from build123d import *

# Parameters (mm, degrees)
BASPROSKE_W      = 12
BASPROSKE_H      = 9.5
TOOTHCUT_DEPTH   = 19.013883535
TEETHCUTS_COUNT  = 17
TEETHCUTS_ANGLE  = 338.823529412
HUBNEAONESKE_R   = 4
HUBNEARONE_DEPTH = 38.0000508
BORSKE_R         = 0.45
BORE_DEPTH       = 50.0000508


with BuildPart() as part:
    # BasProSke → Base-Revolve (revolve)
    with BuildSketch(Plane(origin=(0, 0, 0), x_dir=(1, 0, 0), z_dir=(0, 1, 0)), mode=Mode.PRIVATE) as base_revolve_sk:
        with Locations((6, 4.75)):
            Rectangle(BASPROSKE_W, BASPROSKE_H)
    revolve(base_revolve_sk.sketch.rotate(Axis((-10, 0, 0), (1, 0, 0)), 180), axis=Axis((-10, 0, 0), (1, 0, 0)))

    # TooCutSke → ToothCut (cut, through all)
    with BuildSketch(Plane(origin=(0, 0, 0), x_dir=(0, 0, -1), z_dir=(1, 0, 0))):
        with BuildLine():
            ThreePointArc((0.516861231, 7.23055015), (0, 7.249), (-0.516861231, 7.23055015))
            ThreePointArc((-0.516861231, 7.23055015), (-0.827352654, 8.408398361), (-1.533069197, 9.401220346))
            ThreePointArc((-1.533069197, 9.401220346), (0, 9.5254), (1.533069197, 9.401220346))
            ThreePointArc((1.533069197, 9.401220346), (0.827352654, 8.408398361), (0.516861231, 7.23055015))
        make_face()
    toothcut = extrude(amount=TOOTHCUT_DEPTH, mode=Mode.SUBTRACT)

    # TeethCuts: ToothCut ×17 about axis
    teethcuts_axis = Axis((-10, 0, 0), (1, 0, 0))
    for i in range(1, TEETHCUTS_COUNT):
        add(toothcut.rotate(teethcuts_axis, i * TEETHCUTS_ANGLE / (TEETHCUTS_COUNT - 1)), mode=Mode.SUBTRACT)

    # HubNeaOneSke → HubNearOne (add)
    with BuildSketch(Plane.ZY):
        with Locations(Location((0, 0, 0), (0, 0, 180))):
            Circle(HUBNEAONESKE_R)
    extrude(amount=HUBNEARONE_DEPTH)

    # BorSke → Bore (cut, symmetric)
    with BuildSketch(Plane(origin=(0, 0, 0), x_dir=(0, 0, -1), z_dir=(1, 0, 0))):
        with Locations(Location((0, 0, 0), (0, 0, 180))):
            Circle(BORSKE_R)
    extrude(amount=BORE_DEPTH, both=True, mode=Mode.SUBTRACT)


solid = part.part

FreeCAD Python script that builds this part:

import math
import FreeCAD as App
import Part
import Sketcher

V = App.Vector
Q = App.Units.Quantity


def add_polygon(sketch, points):
    """Adds a closed chain of lines whose ends are joined by coincident constraints."""
    first, n = sketch.GeometryCount, len(points)
    for a, b in zip(points, points[1:] + points[:1]):
        sketch.addGeometry(Part.LineSegment(App.Vector(*a, 0), App.Vector(*b, 0)), False)
    for i in range(n):
        sketch.addConstraint(Sketcher.Constraint("Coincident", first + i, 2, first + (i + 1) % n, 1))

doc = App.newDocument("Part")
body = doc.addObject("PartDesign::Body", "Body")

# Sketch on XZ plane
sketch1 = body.newObject("Sketcher::SketchObject", "Sketch")
sketch1.AttachmentSupport = (doc.getObject("XZ_Plane"), [""])
sketch1.MapMode = "FlatFace"
add_polygon(sketch1, [(0, -10), (0, 0), (12, 0), (12, -10)])  # lines 0-3
sketch1.addConstraint(Sketcher.Constraint("Vertical", 0))
sketch1.addConstraint(Sketcher.Constraint("Horizontal", 1))
sketch1.addConstraint(Sketcher.Constraint("Vertical", 2))
sketch1.addConstraint(Sketcher.Constraint("Horizontal", 3))
sketch1.addConstraint(Sketcher.Constraint("Coincident", 0, 2, -1, 1))
sketch1.addConstraint(Sketcher.Constraint("DistanceX", 1, 1, 1, 2, Q("12 mm")))
sketch1.addConstraint(Sketcher.Constraint("DistanceY", 0, 1, 0, 2, Q("9.5 mm")))
revolution = body.newObject("PartDesign::Revolution", "Revolution")
revolution.Profile = sketch1
revolution.ReferenceAxis = (sketch1, ["H_Axis"])
revolution.Angle = 360

# Sketch on YZ plane
sketch2 = body.newObject("Sketcher::SketchObject", "Sketch001")
sketch2.AttachmentSupport = (doc.getObject("YZ_Plane"), [""])
sketch2.MapMode = "FlatFace"
sketch2.addGeometry(Part.ArcOfCircle(Part.Circle(V(0, 0, 0), V(0, 0, 1), 7.2), math.radians(-4.09), math.radians(4.09)), False)
sketch2.addGeometry(Part.ArcOfCircle(Part.Circle(V(7, -3.9, 0), V(0, 0, 1), 3.4), math.radians(44), math.radians(86)), False)
sketch2.addGeometry(Part.ArcOfCircle(Part.Circle(V(0, 0, 0), V(0, 0, 1), 9.5), math.radians(-9.26), math.radians(9.26)), False)
sketch2.addGeometry(Part.ArcOfCircle(Part.Circle(V(7, 3.9, 0), V(0, 0, 1), 3.4), math.radians(-86), math.radians(-44)), False)
sketch2.addConstraint(Sketcher.Constraint("Coincident", 0, 1, 1, 2))
sketch2.addConstraint(Sketcher.Constraint("Coincident", 1, 1, 2, 1))
sketch2.addConstraint(Sketcher.Constraint("Coincident", 2, 2, 3, 2))
sketch2.addConstraint(Sketcher.Constraint("Coincident", 3, 1, 0, 2))
sketch2.addConstraint(Sketcher.Constraint("Coincident", 0, 3, -1, 1))
sketch2.addConstraint(Sketcher.Constraint("Coincident", 2, 3, -1, 1))
sketch2.addConstraint(Sketcher.Constraint("Equal", 1, 3))
sketch2.addConstraint(Sketcher.Constraint("Symmetric", 1, 3, 3, 3, -1))
sketch2.addConstraint(Sketcher.Constraint("Radius", 1, Q("3.4 mm")))
sketch2.addConstraint(Sketcher.Constraint("Radius", 0, Q("7.249 mm")))
sketch2.addConstraint(Sketcher.Constraint("Radius", 2, Q("9.5254 mm")))
sketch2.addConstraint(Sketcher.Constraint("DistanceX", -1, 1, 0, 1, Q("7.23055 mm")))
sketch2.addConstraint(Sketcher.Constraint("DistanceX", -1, 1, 1, 1, Q("9.40122 mm")))
pocket1 = body.newObject("PartDesign::Pocket", "Pocket")
pocket1.Profile = sketch2
pocket1.Type = "ThroughAll"
pocket1.Reversed = True
doc.recompute()

polarpattern = body.newObject("PartDesign::PolarPattern", "PolarPattern")
polarpattern.Originals = [pocket1]
polarpattern.Axis = (doc.getObject("X_Axis"), [""])
polarpattern.Angle = 360
polarpattern.Occurrences = 17
body.Tip = polarpattern

# Sketch on YZ plane
sketch3 = body.newObject("Sketcher::SketchObject", "Sketch002")
sketch3.AttachmentSupport = (doc.getObject("YZ_Plane"), [""])
sketch3.MapMode = "FlatFace"
sketch3.addGeometry(Part.Circle(V(0, 0, 0), V(0, 0, 1), 4), False)
sketch3.addConstraint(Sketcher.Constraint("Coincident", 0, 3, -1, 1))
sketch3.addConstraint(Sketcher.Constraint("Diameter", 0, Q("8 mm")))
pad1 = body.newObject("PartDesign::Pad", "Pad")
pad1.Profile = sketch3
pad1.Length = 38.000051
pad1.Reversed = True

# Sketch on YZ plane
sketch4 = body.newObject("Sketcher::SketchObject", "Sketch003")
sketch4.AttachmentSupport = (doc.getObject("YZ_Plane"), [""])
sketch4.MapMode = "FlatFace"
sketch4.addGeometry(Part.Circle(V(0, 0, 0), V(0, 0, 1), 0.45), False)
sketch4.addConstraint(Sketcher.Constraint("Coincident", 0, 3, -1, 1))
sketch4.addConstraint(Sketcher.Constraint("Diameter", 0, Q("0.9 mm")))
pocket2 = body.newObject("PartDesign::Pocket", "Pocket001")
pocket2.Profile = sketch4
pocket2.Length = 100.000102
pocket2.Midplane = True

doc.recompute()
